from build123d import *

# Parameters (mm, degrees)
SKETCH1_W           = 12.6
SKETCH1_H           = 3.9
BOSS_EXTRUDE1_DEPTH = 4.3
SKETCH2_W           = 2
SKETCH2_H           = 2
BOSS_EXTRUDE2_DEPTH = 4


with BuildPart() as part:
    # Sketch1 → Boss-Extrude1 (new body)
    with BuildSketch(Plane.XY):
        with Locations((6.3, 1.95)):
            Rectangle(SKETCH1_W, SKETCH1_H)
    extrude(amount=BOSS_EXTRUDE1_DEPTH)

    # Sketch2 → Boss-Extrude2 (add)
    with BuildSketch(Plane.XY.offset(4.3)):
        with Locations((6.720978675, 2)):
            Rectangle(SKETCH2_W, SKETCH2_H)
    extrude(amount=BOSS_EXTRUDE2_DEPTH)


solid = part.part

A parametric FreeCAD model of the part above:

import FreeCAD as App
import Part
import Sketcher

V = App.Vector
Q = App.Units.Quantity


def add_polygon(sketch, points):
    """Adds a closed chain of lines whose ends are joined by coincident constraints."""
    first, n = sketch.GeometryCount, len(points)
    for a, b in zip(points, points[1:] + points[:1]):
        sketch.addGeometry(Part.LineSegment(App.Vector(*a, 0), App.Vector(*b, 0)), False)
    for i in range(n):
        sketch.addConstraint(Sketcher.Constraint("Coincident", first + i, 2, first + (i + 1) % n, 1))

doc = App.newDocument("Part")
params = doc.addObject("Spreadsheet::Sheet", "Params")
for row, (alias, value) in enumerate([
    ("sketch1_width", "12.6 mm"),
    ("sketch1_height", "3.9 mm"),
    ("pad1_length", "4.3 mm"),
    ("sketch2_width", "2 mm"),
    ("pad2_length", "4 mm"),
], start=1):
    params.set(f"A{row}", alias)
    params.set(f"B{row}", "=" + value)
    params.setAlias(f"B{row}", alias)

body = doc.addObject("PartDesign::Body", "Body")

# Sketch on XY plane
sketch1 = doc.addObject("Sketcher::SketchObject", "Sketch")
body.addObject(sketch1)
sketch1.AttachmentSupport = (doc.XY_Plane, [""])
sketch1.MapMode = "FlatFace"
add_polygon(sketch1, [(0, 3.9), (0, 0), (12.6, 0), (12.6, 3.9)])  # lines 0-3
sketch1.addConstraint([
    Sketcher.Constraint("Vertical", 0),
    Sketcher.Constraint("Horizontal", 1),
    Sketcher.Constraint("Vertical", 2),
    Sketcher.Constraint("Horizontal", 3),
    Sketcher.Constraint("Coincident", 0, 2, -1, 1),
    Sketcher.Constraint("DistanceX", 1, 1, 1, 2, Q("12.6 mm")),
    Sketcher.Constraint("DistanceY", 0, 2, 0, 1, Q("3.9 mm")),
])
sketch1.setExpression("Constraints[9]", "Params.sketch1_width")
sketch1.setExpression("Constraints[10]", "Params.sketch1_height")
pad1 = doc.addObject("PartDesign::Pad", "Pad")
body.addObject(pad1)
pad1.Profile = sketch1
pad1.setExpression("Length", "Params.pad1_length")

# Sketch on XY plane
sketch2 = doc.addObject("Sketcher::SketchObject", "Sketch001")
body.addObject(sketch2)
sketch2.AttachmentSupport = (doc.XY_Plane, [""])
sketch2.MapMode = "FlatFace"
sketch2.AttachmentOffset = App.Placement(V(0, 0, 4.3), App.Rotation())
add_polygon(sketch2, [(5.7, 3), (5.7, 1), (7.7, 1), (7.7, 3)])  # lines 0-3
sketch2.addConstraint([
    Sketcher.Constraint("Vertical", 0),
    Sketcher.Constraint("Horizontal", 1),
    Sketcher.Constraint("Vertical", 2),
    Sketcher.Constraint("Horizontal", 3),
    Sketcher.Constraint("Equal", 3, 0),
    Sketcher.Constraint("DistanceX", 1, 1, 1, 2, Q("2 mm")),
    Sketcher.Constraint("DistanceY", -1, 1, 0, 2, Q("1 mm")),
    Sketcher.Constraint("DistanceX", -1, 1, 0, 2, Q("5.720979 mm")),
])
sketch2.setExpression("Constraints[9]", "Params.sketch2_width")
pad2 = doc.addObject("PartDesign::Pad", "Pad001")
body.addObject(pad2)
pad2.Profile = sketch2
pad2.setExpression("Length", "Params.pad2_length")

doc.recompute()
